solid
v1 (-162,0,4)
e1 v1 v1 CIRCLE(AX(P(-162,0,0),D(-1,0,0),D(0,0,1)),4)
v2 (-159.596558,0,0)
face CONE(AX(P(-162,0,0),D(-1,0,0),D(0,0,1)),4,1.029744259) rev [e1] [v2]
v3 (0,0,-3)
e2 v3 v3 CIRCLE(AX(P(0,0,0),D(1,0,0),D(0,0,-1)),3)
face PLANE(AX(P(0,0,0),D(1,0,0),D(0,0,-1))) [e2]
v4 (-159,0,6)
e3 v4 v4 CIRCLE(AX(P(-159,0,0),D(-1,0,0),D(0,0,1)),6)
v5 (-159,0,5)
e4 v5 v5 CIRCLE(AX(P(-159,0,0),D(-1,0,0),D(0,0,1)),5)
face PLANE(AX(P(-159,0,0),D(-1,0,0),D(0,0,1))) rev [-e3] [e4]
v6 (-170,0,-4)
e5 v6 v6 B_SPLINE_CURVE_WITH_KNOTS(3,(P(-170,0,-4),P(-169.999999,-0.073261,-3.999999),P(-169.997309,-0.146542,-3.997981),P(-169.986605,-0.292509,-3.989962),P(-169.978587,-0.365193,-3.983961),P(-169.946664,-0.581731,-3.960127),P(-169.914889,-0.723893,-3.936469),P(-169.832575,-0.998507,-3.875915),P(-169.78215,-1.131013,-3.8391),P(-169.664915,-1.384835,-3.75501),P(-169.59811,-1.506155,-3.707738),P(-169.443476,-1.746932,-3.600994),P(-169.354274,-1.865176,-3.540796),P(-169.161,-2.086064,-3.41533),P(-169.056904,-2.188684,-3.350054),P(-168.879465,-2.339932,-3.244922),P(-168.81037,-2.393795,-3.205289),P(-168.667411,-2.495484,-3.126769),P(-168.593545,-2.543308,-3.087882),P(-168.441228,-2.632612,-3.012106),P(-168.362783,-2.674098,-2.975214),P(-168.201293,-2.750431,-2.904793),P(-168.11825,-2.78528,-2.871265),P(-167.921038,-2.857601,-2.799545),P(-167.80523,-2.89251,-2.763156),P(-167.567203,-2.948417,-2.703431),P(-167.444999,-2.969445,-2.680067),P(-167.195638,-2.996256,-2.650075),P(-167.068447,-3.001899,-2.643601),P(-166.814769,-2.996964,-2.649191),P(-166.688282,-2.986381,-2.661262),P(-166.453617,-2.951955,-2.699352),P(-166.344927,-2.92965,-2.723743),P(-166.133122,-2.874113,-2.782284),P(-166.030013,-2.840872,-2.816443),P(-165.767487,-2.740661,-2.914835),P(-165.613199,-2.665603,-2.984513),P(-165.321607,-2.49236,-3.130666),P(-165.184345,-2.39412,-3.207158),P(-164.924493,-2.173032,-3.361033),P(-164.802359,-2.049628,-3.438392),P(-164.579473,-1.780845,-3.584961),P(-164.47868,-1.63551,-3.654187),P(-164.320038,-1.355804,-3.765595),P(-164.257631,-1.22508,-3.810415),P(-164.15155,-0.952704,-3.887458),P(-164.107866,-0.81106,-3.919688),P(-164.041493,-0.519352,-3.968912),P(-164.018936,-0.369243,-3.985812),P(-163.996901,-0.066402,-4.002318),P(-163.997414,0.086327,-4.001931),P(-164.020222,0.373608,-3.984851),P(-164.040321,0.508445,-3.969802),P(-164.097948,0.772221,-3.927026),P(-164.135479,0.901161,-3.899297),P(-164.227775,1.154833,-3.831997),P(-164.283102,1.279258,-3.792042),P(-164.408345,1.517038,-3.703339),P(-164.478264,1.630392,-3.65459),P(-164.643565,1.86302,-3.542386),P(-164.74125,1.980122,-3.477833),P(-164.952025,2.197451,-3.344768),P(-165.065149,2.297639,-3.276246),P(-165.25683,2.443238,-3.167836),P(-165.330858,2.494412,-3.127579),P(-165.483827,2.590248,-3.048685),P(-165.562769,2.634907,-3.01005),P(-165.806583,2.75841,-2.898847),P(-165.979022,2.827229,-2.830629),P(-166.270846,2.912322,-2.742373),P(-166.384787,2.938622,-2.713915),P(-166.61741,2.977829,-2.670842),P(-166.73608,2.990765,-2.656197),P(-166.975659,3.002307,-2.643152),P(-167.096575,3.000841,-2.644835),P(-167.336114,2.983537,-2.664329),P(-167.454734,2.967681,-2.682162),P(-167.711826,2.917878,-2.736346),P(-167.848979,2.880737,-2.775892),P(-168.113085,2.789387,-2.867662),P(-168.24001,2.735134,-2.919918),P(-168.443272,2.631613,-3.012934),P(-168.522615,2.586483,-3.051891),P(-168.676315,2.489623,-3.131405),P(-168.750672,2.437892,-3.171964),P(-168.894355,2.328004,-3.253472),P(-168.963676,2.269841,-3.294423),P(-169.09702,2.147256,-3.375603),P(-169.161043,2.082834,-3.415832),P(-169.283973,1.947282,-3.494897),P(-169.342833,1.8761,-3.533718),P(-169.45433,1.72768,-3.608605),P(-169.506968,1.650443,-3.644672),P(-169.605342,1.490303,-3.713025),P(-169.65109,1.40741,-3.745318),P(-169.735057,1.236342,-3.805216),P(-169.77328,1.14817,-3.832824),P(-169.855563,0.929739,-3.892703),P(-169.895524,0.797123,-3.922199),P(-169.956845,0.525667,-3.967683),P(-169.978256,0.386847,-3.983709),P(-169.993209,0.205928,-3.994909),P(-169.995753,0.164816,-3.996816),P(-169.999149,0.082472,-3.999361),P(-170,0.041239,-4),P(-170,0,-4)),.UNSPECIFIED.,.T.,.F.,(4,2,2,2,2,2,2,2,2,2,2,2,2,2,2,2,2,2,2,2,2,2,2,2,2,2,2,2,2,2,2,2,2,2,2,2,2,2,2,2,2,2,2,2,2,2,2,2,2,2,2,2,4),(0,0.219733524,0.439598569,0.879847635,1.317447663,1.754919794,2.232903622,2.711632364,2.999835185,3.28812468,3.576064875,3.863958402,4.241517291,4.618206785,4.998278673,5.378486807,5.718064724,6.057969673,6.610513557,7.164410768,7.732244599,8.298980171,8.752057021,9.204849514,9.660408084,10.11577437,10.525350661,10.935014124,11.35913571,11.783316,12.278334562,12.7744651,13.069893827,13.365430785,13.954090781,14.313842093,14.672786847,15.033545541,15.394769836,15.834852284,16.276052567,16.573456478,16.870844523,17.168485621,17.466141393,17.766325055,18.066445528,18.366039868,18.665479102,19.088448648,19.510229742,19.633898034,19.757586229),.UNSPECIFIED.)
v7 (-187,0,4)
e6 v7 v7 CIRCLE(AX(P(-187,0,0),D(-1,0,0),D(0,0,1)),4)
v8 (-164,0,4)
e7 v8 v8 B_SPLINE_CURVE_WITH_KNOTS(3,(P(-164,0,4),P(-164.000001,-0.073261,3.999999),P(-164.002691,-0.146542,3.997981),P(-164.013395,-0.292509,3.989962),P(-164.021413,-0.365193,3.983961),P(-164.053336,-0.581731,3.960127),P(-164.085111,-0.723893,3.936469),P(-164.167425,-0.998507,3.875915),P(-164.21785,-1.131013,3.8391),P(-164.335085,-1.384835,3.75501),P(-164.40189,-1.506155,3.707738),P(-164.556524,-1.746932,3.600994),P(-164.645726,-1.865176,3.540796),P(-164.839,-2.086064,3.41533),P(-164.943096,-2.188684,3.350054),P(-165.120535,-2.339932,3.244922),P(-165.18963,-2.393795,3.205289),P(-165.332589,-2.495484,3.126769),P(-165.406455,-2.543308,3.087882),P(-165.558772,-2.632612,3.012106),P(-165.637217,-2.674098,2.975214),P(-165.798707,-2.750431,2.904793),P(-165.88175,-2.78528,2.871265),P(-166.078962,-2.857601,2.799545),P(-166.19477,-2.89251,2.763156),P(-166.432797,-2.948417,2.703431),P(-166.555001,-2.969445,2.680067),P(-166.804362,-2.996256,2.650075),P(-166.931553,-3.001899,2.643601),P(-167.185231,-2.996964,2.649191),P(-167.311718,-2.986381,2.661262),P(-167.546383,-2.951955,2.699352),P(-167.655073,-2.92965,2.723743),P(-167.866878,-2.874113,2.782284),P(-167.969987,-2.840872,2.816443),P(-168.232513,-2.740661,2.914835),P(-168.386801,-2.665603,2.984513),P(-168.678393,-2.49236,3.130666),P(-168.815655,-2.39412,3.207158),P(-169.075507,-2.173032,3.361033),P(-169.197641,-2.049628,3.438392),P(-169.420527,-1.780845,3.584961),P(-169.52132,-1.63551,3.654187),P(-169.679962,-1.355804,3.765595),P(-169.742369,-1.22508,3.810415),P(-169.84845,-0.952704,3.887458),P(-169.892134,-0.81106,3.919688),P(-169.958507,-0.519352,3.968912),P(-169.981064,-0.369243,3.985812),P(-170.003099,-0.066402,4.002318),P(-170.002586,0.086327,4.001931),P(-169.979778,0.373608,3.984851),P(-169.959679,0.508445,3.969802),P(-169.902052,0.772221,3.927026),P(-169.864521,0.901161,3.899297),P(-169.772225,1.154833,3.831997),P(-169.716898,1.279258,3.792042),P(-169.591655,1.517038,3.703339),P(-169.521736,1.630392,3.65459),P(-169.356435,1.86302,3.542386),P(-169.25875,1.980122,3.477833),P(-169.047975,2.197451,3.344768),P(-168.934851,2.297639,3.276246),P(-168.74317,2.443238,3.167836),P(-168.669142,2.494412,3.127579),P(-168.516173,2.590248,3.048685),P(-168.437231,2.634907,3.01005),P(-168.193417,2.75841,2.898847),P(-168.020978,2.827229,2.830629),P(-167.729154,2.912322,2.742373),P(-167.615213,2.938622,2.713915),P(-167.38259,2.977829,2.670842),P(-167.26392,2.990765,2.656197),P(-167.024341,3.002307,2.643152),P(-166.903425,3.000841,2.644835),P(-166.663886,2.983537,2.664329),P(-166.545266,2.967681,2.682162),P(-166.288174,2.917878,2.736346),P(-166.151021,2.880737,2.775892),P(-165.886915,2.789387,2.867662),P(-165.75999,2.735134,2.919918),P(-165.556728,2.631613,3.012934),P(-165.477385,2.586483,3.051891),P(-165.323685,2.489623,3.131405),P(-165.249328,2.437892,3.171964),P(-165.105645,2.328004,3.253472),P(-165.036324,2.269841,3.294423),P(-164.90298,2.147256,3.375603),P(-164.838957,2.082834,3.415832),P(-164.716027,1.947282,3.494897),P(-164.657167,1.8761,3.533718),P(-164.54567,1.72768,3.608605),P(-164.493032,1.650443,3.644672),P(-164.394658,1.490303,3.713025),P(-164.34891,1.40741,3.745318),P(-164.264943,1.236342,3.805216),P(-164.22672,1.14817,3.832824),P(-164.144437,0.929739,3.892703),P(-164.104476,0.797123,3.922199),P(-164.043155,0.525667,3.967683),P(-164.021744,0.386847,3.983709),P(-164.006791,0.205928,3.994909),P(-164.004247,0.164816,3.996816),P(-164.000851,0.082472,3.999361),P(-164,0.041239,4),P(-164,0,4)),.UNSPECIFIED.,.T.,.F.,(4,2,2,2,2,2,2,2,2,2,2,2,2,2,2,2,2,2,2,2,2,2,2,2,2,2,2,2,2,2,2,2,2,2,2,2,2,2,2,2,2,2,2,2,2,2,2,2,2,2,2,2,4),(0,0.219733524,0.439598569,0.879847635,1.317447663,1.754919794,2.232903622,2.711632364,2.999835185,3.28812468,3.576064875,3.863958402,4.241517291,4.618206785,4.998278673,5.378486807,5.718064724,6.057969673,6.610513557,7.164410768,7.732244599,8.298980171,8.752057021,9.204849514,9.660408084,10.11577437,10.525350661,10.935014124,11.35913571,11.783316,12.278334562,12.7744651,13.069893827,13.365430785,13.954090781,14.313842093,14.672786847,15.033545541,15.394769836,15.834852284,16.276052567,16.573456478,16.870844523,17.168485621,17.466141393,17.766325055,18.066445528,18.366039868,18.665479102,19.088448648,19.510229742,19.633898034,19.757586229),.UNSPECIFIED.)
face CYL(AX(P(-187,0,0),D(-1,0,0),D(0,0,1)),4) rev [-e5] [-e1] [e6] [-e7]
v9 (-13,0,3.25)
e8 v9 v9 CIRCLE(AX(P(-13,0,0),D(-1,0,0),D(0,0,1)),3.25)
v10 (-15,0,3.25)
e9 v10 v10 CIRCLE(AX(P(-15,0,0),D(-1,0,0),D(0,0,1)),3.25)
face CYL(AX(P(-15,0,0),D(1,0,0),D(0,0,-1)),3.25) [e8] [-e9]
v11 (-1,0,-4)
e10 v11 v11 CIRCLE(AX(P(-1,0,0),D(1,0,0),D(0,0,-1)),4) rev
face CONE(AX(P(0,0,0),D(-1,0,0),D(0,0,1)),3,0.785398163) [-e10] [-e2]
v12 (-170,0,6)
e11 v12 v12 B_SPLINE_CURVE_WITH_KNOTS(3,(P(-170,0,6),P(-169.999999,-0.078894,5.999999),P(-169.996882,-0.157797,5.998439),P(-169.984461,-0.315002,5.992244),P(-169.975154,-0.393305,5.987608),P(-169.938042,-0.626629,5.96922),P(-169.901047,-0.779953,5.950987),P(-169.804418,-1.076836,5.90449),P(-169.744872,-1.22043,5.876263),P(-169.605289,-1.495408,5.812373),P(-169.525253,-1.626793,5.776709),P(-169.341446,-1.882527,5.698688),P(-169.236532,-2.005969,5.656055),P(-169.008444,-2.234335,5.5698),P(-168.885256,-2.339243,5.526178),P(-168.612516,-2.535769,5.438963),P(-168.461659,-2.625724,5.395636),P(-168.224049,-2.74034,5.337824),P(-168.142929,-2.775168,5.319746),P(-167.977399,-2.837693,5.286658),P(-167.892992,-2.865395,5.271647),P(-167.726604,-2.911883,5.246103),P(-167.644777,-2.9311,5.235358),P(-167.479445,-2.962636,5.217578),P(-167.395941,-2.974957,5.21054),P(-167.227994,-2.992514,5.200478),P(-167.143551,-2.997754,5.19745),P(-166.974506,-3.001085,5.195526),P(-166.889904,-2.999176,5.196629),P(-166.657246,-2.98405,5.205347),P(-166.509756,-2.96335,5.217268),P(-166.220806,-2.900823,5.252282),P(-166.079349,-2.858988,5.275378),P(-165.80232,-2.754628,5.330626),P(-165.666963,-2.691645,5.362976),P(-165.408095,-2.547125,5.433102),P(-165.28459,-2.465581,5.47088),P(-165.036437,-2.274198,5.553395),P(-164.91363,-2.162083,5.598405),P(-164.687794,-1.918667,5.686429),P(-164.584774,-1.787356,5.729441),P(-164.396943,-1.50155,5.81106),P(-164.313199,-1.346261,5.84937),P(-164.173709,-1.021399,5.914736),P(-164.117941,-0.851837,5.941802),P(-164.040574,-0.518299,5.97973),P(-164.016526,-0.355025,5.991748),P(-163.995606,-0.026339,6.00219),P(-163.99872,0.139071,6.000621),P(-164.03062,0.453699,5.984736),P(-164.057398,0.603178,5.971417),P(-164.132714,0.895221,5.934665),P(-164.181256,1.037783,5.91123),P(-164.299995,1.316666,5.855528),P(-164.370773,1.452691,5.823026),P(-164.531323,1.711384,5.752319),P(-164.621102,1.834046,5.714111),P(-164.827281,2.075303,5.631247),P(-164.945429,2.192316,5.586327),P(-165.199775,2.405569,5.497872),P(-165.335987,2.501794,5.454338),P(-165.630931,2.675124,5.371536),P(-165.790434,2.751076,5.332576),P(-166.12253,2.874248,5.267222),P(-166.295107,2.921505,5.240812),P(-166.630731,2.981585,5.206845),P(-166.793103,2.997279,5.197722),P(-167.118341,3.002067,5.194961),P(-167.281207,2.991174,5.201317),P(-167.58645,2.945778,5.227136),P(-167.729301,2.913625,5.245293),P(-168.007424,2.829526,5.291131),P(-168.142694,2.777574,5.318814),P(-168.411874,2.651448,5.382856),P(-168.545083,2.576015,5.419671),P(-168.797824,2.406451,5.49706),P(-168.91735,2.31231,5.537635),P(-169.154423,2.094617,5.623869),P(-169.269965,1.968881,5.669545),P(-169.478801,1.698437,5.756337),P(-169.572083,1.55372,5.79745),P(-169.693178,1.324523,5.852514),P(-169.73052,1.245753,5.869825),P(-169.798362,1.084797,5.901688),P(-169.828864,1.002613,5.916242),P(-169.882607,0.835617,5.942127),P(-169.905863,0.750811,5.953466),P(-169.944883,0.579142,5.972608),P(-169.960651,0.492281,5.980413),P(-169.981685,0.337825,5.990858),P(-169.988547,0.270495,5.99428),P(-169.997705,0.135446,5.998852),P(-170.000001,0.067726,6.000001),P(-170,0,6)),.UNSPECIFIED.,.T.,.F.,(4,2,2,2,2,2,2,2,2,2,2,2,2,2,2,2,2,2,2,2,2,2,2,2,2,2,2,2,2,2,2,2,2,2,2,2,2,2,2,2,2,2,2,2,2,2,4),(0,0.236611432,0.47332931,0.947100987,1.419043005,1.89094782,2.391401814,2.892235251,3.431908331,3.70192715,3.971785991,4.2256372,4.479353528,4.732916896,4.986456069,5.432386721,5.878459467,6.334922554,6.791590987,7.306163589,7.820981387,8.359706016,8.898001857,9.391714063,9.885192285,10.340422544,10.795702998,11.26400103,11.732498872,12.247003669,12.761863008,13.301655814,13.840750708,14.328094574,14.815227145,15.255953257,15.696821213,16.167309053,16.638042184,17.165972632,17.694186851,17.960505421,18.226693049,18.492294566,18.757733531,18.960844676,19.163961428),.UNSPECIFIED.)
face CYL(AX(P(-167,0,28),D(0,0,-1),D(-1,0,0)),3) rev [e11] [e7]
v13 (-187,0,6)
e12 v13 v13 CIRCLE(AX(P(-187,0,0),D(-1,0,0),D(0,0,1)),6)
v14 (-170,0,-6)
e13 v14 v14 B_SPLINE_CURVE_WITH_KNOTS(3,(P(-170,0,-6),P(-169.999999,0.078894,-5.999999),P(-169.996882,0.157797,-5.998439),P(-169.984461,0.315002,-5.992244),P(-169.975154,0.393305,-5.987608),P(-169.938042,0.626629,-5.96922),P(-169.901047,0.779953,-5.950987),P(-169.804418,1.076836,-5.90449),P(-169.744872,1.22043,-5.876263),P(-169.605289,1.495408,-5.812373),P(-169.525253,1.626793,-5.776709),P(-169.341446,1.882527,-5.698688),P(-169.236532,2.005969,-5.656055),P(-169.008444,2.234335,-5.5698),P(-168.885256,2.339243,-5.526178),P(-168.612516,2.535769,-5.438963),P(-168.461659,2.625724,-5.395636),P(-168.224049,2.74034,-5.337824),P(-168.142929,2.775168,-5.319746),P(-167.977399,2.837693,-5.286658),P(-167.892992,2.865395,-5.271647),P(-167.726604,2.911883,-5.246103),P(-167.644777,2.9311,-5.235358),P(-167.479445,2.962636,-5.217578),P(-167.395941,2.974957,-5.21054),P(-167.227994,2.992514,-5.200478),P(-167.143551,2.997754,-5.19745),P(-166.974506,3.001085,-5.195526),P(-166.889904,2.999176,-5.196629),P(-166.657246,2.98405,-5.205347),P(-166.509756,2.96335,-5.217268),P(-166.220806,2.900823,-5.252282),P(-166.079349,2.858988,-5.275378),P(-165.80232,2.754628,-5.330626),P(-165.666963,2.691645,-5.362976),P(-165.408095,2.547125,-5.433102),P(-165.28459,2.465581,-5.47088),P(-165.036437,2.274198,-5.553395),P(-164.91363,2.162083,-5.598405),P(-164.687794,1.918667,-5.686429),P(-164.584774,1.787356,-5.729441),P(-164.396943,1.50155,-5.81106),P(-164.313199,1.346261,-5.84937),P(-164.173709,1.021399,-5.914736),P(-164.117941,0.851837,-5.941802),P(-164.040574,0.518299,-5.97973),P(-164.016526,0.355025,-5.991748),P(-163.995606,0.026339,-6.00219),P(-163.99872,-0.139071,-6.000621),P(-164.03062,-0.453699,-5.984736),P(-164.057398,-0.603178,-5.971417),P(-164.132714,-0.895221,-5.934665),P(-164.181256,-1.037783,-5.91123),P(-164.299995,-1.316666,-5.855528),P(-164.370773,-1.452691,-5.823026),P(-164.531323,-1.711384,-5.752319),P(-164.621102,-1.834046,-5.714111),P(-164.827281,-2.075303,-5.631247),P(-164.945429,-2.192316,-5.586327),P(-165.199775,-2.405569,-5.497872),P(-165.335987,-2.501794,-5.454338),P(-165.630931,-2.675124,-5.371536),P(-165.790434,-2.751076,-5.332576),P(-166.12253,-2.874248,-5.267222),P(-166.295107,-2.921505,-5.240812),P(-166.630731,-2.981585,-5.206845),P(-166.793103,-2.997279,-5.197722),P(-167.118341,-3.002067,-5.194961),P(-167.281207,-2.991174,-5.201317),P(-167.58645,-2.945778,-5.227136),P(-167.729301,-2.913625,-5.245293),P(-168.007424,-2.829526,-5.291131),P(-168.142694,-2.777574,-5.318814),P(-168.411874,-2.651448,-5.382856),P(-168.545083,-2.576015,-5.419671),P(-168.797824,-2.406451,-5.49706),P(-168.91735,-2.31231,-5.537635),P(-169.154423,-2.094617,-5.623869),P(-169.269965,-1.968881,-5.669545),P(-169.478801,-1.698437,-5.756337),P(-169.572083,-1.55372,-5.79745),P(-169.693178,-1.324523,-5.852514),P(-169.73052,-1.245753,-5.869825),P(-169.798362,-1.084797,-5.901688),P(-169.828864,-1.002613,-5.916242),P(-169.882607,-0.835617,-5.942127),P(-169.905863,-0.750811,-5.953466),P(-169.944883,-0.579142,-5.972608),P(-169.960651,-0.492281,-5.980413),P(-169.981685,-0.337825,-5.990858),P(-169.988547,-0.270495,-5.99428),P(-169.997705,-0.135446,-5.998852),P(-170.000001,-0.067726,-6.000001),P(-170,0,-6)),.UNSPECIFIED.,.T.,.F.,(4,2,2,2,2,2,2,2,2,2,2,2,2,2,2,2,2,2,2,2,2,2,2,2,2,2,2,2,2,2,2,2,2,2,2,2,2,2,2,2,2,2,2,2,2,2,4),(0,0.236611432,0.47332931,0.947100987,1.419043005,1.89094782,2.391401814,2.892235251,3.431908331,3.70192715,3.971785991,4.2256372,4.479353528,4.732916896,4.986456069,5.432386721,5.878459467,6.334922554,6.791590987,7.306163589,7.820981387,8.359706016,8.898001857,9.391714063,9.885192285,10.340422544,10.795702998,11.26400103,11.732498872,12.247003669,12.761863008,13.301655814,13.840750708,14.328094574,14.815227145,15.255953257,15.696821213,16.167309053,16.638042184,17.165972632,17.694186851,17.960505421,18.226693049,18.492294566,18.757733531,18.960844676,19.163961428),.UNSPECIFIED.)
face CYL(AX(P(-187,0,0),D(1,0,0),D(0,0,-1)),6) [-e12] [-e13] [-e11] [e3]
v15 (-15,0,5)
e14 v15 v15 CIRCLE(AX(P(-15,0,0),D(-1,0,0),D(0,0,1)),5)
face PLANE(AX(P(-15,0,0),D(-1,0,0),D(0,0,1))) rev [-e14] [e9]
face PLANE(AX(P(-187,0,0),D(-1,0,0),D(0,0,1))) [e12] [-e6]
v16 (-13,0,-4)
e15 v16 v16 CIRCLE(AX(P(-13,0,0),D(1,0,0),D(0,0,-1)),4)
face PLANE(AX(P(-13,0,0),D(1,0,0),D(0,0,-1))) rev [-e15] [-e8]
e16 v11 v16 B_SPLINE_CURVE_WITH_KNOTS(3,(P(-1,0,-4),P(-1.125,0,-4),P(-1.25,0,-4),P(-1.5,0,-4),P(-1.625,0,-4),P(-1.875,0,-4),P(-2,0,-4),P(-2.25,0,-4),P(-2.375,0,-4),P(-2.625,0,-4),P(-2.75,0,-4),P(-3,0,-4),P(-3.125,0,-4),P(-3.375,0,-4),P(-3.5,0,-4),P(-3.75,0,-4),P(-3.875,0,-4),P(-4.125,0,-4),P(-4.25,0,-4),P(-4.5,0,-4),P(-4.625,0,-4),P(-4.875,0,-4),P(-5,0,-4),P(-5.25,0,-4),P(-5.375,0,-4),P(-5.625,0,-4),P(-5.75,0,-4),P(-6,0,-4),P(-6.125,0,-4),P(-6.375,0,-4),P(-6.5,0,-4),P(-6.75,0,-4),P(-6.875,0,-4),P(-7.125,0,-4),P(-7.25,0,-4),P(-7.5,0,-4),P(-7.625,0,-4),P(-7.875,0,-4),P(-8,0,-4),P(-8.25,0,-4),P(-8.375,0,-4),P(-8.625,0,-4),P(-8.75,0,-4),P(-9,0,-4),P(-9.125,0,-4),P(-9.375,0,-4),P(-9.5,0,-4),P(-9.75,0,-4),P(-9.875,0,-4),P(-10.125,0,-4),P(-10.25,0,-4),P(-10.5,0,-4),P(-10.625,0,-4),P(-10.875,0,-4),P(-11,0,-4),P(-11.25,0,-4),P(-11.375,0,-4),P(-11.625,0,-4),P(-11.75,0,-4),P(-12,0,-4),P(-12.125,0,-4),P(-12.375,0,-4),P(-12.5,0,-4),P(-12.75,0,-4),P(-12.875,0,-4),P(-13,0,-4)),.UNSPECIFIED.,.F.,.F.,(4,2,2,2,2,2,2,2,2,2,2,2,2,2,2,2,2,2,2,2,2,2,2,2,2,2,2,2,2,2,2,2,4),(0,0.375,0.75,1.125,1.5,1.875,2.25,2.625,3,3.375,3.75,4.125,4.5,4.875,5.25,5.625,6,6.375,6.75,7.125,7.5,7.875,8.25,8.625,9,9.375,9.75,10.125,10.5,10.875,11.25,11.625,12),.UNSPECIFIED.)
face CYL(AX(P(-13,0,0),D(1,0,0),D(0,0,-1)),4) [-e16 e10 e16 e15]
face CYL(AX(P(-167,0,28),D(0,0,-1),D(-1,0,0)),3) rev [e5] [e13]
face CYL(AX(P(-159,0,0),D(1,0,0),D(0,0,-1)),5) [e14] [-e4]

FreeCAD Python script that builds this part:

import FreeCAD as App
import Part
import Sketcher


def edges_at(feature, points):
    """Names of the edges that pass closest to the given points."""
    edges = feature.Shape.Edges
    near = lambda p: min(range(len(edges)), key=lambda i: edges[i].distToShape(Part.Vertex(*p))[0])
    return sorted({f"Edge{near(p) + 1}" for p in points})

doc = App.newDocument("Part")
params = doc.addObject("Spreadsheet::Sheet", "Params")
for row, (alias, value) in enumerate([
    ("sketch1_diameter", "8 mm"),
    ("pad1_length", "13 mm"),
    ("sketch2_diameter", "6.5 mm"),
    ("pad2_length", "2 mm"),
    ("sketch3_diameter", "10 mm"),
    ("pad3_length", "144 mm"),
    ("chamfer_size", "1 mm"),
    ("sketch4_diameter", "12 mm"),
    ("pad4_length", "28 mm"),
    ("sketch5_diameter", "8 mm"),
    ("hole_diameter", "8 mm"),
    ("hole_depth", "25 mm"),
    ("sketch6_diameter", "6 mm"),
], start=1):
    params.set(f"A{row}", alias)
    params.set(f"B{row}", "=" + value)
    params.setAlias(f"B{row}", alias)

body = doc.addObject("PartDesign::Body", "Body")

# Sketch on YZ plane
sketch1 = body.newObject("Sketcher::SketchObject", "Sketch")
sketch1.AttachmentSupport = (doc.getObject("YZ_Plane"), [""])
sketch1.MapMode = "FlatFace"
sketch1.addGeometry(Part.Circle(App.Vector(0, 0, 0), App.Vector(0, 0, 1), 4), False)
sketch1.addConstraint([
    Sketcher.Constraint("Coincident", 0, 3, -1, 1),
    Sketcher.Constraint("Diameter", 0, 8.0),
])
sketch1.setExpression("Constraints[1]", "Params.sketch1_diameter")
pad1 = body.newObject("PartDesign::Pad", "Pad")
pad1.Profile = sketch1
pad1.setExpression("Length", "Params.pad1_length")
pad1.Reversed = True

# Sketch on YZ plane
sketch2 = body.newObject("Sketcher::SketchObject", "Sketch001")
sketch2.AttachmentSupport = (doc.getObject("YZ_Plane"), [""])
sketch2.MapMode = "FlatFace"
sketch2.AttachmentOffset = App.Placement(App.Vector(0, 0, -13), App.Rotation())
sketch2.addGeometry(Part.Circle(App.Vector(0, 0, 0), App.Vector(0, 0, 1), 3.25), False)
sketch2.addConstraint([
    Sketcher.Constraint("Coincident", 0, 3, -1, 1),
    Sketcher.Constraint("Diameter", 0, 6.5),
])
sketch2.setExpression("Constraints[1]", "Params.sketch2_diameter")
pad2 = body.newObject("PartDesign::Pad", "Pad001")
pad2.Profile = sketch2
pad2.setExpression("Length", "Params.pad2_length")
pad2.Reversed = True

# Sketch on YZ plane
sketch3 = body.newObject("Sketcher::SketchObject", "Sketch002")
sketch3.AttachmentSupport = (doc.getObject("YZ_Plane"), [""])
sketch3.MapMode = "FlatFace"
sketch3.AttachmentOffset = App.Placement(App.Vector(0, 0, -15), App.Rotation())
sketch3.addGeometry(Part.Circle(App.Vector(0, 0, 0), App.Vector(0, 0, 1), 5), False)
sketch3.addConstraint([
    Sketcher.Constraint("Coincident", 0, 3, -1, 1),
    Sketcher.Constraint("Diameter", 0, 10.0),
])
sketch3.setExpression("Constraints[1]", "Params.sketch3_diameter")
pad3 = body.newObject("PartDesign::Pad", "Pad002")
pad3.Profile = sketch3
pad3.setExpression("Length", "Params.pad3_length")
pad3.Reversed = True
doc.recompute()

chamfer = body.newObject("PartDesign::Chamfer", "Chamfer")
chamfer.Base = (pad3, edges_at(pad3, [(0, 0, 4)]))
chamfer.setExpression("Size", "Params.chamfer_size")

# Sketch on YZ plane
sketch4 = body.newObject("Sketcher::SketchObject", "Sketch003")
sketch4.AttachmentSupport = (doc.getObject("YZ_Plane"), [""])
sketch4.MapMode = "FlatFace"
sketch4.AttachmentOffset = App.Placement(App.Vector(0, 0, -159), App.Rotation())
sketch4.addGeometry(Part.Circle(App.Vector(0, 0, 0), App.Vector(0, 0, 1), 6), False)
sketch4.addConstraint([
    Sketcher.Constraint("Coincident", 0, 3, -1, 1),
    Sketcher.Constraint("Diameter", 0, 12.0),
])
sketch4.setExpression("Constraints[1]", "Params.sketch4_diameter")
pad4 = body.newObject("PartDesign::Pad", "Pad003")
pad4.Profile = sketch4
pad4.setExpression("Length", "Params.pad4_length")
pad4.Reversed = True

# Sketch on YZ plane
sketch5 = body.newObject("Sketcher::SketchObject", "Sketch004")
sketch5.AttachmentSupport = (doc.getObject("YZ_Plane"), [""])
sketch5.MapMode = "FlatFace"
sketch5.AttachmentOffset = App.Placement(App.Vector(0, 0, -187), App.Rotation())
sketch5.addGeometry(Part.Circle(App.Vector(0, 0, 0), App.Vector(0, 0, 1), 4), False)
sketch5.addConstraint([
    Sketcher.Constraint("Coincident", 0, 3, -1, 1),
    Sketcher.Constraint("Diameter", 0, 8.0),
])
sketch5.setExpression("Constraints[1]", "Params.sketch5_diameter")
doc.recompute()
hole = body.newObject("PartDesign::Hole", "Hole")
hole.Profile = sketch5
hole.ThreadType = "None"
hole.setExpression("Diameter", "Params.hole_diameter")
hole.DepthType = "Dimension"
hole.setExpression("Depth", "Params.hole_depth")
hole.DrillPoint = "Angled"
hole.DrillPointAngle = 118
hole.Reversed = True

# Sketch on XY plane
sketch6 = body.newObject("Sketcher::SketchObject", "Sketch005")
sketch6.AttachmentSupport = (doc.getObject("XY_Plane"), [""])
sketch6.MapMode = "FlatFace"
sketch6.addGeometry(Part.Circle(App.Vector(-167, 0, 0), App.Vector(0, 0, 1), 3), False)
sketch6.addConstraint([
    Sketcher.Constraint("PointOnObject", 0, 3, -1),
    Sketcher.Constraint("Diameter", 0, 6.0),
    Sketcher.Constraint("DistanceX", 0, 3, -1, 1, 167.0),
])
sketch6.setExpression("Constraints[1]", "Params.sketch6_diameter")
pocket1 = body.newObject("PartDesign::Pocket", "Pocket")
pocket1.Profile = sketch6
pocket1.Type = "ThroughAll"
pocket1.Midplane = True

doc.recompute()
